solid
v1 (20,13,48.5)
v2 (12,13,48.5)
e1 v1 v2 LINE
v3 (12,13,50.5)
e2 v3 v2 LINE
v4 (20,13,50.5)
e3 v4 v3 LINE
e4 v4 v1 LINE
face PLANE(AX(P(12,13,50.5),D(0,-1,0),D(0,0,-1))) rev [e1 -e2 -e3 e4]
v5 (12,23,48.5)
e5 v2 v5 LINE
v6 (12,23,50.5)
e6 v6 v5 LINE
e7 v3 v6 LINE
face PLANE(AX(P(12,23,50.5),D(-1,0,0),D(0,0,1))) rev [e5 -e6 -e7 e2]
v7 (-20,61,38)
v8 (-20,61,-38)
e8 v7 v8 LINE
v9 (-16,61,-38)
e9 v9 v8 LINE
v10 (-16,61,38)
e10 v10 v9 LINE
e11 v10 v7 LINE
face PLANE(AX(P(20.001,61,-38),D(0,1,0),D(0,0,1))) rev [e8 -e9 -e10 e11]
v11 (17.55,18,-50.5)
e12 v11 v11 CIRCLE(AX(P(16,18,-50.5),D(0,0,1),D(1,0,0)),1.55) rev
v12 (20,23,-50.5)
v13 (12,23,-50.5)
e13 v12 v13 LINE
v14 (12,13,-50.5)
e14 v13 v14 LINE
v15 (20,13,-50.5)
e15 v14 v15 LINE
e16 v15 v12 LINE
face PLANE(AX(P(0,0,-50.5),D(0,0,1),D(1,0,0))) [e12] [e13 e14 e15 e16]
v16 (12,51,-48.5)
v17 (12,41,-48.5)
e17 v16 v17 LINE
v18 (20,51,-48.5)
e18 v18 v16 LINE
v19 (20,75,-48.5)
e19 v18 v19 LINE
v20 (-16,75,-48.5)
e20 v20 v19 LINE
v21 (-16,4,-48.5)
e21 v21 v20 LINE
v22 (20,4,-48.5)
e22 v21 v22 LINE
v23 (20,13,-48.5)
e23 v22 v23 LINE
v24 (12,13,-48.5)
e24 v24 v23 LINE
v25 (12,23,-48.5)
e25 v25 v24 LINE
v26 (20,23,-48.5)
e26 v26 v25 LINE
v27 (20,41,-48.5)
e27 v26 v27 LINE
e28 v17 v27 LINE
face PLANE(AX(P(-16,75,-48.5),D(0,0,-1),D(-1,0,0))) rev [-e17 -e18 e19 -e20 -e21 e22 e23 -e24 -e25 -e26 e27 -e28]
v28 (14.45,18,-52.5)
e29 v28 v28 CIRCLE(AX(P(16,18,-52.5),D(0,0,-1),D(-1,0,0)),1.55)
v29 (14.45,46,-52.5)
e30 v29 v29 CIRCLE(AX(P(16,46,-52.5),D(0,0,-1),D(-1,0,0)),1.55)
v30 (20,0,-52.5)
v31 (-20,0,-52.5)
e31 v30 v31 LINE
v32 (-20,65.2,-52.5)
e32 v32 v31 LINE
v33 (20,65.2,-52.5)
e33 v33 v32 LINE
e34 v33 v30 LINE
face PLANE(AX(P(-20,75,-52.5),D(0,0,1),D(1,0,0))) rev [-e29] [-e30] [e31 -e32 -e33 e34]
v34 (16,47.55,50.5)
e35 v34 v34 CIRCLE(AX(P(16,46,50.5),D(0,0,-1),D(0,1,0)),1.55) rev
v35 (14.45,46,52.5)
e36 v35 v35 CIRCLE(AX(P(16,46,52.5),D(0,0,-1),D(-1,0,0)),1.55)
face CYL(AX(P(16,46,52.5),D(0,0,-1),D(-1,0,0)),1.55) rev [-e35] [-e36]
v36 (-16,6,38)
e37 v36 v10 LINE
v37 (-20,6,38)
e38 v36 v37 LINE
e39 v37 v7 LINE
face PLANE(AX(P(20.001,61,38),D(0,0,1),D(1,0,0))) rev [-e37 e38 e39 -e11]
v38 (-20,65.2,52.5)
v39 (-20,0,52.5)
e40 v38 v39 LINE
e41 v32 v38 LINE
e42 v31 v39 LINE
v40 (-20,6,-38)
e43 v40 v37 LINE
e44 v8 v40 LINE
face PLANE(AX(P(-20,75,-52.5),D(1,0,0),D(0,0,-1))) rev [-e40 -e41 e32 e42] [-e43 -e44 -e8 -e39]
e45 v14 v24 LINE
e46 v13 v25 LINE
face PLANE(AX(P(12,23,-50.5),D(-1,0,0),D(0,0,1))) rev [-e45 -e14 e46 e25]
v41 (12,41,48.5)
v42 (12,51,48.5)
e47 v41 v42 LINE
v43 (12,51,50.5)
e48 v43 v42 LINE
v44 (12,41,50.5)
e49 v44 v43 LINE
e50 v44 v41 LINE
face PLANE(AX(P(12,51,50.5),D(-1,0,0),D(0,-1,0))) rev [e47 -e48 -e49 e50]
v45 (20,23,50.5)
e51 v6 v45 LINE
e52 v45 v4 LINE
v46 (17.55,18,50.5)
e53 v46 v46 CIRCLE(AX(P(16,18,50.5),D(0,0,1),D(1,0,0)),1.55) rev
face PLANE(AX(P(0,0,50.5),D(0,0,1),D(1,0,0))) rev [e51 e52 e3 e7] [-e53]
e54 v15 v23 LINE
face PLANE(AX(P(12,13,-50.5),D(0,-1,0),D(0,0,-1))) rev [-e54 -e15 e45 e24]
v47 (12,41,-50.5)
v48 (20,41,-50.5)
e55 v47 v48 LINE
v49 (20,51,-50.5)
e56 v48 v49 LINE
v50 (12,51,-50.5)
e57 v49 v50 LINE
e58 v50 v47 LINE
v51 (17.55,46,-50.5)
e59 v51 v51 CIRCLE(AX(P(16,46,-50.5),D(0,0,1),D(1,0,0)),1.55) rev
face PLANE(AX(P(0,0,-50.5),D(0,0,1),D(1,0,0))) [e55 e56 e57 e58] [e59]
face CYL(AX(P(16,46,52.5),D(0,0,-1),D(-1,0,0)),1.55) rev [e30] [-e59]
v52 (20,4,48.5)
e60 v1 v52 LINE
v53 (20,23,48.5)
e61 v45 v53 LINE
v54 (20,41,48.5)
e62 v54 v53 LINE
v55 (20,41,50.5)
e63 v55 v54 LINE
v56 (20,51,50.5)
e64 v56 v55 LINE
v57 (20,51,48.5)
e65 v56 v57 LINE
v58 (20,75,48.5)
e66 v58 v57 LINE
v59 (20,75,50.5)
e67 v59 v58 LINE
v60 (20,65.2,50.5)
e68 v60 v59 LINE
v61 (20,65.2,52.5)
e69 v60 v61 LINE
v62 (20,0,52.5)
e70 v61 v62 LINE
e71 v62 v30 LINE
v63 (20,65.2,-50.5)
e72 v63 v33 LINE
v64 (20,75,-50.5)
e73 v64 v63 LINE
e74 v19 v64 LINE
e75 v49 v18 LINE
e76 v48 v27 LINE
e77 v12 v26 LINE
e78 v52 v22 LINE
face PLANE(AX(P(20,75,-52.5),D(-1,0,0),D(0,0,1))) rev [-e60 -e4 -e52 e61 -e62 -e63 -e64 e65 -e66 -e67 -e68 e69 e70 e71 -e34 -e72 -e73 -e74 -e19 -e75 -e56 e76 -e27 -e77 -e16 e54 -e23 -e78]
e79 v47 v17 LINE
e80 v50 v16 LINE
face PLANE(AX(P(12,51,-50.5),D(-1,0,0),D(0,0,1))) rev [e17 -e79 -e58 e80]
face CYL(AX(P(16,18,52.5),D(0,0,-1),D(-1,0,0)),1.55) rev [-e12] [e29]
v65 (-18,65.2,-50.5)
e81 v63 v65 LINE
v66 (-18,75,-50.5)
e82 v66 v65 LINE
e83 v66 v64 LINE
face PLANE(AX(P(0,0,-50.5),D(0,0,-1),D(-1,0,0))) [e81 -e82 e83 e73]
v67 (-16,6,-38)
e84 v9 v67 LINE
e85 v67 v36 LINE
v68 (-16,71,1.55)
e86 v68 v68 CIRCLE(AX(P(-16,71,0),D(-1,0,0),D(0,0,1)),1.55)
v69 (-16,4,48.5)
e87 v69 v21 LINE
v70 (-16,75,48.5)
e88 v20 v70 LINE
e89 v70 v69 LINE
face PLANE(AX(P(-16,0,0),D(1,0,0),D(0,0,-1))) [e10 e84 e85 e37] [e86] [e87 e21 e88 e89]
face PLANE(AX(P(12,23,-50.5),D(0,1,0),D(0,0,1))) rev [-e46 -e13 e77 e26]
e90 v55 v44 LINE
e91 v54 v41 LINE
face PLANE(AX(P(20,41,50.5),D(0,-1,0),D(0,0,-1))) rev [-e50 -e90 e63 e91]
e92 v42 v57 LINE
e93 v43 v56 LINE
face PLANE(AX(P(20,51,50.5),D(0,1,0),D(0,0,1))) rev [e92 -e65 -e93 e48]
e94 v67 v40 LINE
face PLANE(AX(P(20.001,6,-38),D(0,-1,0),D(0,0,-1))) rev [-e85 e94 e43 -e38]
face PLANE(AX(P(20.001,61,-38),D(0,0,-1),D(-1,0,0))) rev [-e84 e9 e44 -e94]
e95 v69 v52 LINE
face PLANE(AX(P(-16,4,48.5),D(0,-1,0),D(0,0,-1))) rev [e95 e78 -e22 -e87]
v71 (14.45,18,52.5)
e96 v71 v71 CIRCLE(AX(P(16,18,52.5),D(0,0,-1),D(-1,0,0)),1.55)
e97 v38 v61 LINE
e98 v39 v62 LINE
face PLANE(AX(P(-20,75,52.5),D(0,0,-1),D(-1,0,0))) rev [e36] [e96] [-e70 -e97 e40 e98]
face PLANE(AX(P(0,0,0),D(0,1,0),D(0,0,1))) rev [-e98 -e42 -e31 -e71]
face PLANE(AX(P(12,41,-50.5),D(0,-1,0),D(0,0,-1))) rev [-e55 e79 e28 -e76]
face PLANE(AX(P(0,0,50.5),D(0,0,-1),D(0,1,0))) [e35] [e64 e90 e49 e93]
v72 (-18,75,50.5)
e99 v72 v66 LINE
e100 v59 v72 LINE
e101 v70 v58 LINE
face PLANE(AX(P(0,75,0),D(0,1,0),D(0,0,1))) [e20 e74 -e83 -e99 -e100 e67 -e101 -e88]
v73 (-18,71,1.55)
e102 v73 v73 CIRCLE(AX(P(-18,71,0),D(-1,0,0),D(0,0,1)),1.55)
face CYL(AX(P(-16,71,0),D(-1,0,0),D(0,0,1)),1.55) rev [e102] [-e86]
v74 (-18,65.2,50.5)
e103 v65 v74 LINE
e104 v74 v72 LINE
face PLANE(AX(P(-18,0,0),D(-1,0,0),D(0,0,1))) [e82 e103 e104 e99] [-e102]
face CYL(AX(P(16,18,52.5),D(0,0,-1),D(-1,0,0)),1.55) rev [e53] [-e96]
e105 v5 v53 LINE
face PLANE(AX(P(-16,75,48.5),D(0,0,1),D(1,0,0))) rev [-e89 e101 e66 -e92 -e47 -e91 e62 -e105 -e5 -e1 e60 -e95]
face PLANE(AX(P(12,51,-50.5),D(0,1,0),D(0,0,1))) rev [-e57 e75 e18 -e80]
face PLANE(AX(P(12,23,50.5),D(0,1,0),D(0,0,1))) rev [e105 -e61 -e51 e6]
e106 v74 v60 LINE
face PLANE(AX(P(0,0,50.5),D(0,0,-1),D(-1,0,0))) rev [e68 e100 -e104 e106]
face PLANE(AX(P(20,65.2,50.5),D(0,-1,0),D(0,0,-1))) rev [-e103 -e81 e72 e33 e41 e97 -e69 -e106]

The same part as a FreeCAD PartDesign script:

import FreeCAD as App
import Part
import Sketcher


def add_polygon(sketch, points):
    """Adds a closed chain of lines whose ends are joined by coincident constraints."""
    first, n = sketch.GeometryCount, len(points)
    for a, b in zip(points, points[1:] + points[:1]):
        sketch.addGeometry(Part.LineSegment(App.Vector(*a, 0), App.Vector(*b, 0)), False)
    for i in range(n):
        sketch.addConstraint(Sketcher.Constraint("Coincident", first + i, 2, first + (i + 1) % n, 1))

doc = App.newDocument("Part")
body = doc.addObject("PartDesign::Body", "Body")

# Sketch on XZ plane
sketch1 = body.newObject("Sketcher::SketchObject", "Sketch")
sketch1.AttachmentSupport = (doc.getObject("XZ_Plane"), [""])
sketch1.MapMode = "FlatFace"
add_polygon(sketch1, [(-20, -52.5), (-20, 52.5), (20, 52.5), (20, -52.5)])  # lines 0-3
sketch1.addConstraint([
    Sketcher.Constraint("Vertical", 0),
    Sketcher.Constraint("Horizontal", 1),
    Sketcher.Constraint("Vertical", 2),
    Sketcher.Constraint("Horizontal", 3),
    Sketcher.Constraint("Symmetric", 0, 2, 2, 2, -1, 1),
    Sketcher.Constraint("DistanceX", 1, 1, 1, 2, 40.0),
    Sketcher.Constraint("DistanceY", 0, 1, 0, 2, 105.0),
])
pad1 = body.newObject("PartDesign::Pad", "Pad")
pad1.Profile = sketch1
pad1.Length = 75
pad1.Reversed = True

# Sketch on YZ plane
sketch2 = body.newObject("Sketcher::SketchObject", "Sketch001")
sketch2.AttachmentSupport = (doc.getObject("YZ_Plane"), [""])
sketch2.MapMode = "FlatFace"
sketch2.AttachmentOffset = App.Placement(App.Vector(0, 0, 20), App.Rotation())
add_polygon(sketch2, [(75, 48.5), (4, 48.5), (4, -48.5), (75, -48.5)])  # lines 0-3
sketch2.addConstraint([
    Sketcher.Constraint("Horizontal", 0),
    Sketcher.Constraint("Vertical", 1),
    Sketcher.Constraint("Horizontal", 2),
    Sketcher.Constraint("Vertical", 3),
    Sketcher.Constraint("DistanceX", 0, 2, 0, 1, 71.0),
    Sketcher.Constraint("DistanceY", 1, 2, 1, 1, 97.0),
    Sketcher.Constraint("DistanceX", -1, 1, 0, 2, 4.0),
    Sketcher.Constraint("DistanceY", -1, 1, 0, 2, 48.5),
])
pocket1 = body.newObject("PartDesign::Pocket", "Pocket")
pocket1.Profile = sketch2
pocket1.Length = 36

# Sketch on XY plane
sketch3 = body.newObject("Sketcher::SketchObject", "Sketch002")
sketch3.AttachmentSupport = (doc.getObject("XY_Plane"), [""])
sketch3.MapMode = "FlatFace"
sketch3.AttachmentOffset = App.Placement(App.Vector(0, 0, 52.5), App.Rotation())
add_polygon(sketch3, [(-20, 75), (-20, 65.2), (20, 65.2), (20, 75)])  # lines 0-3
sketch3.addConstraint([
    Sketcher.Constraint("Vertical", 0),
    Sketcher.Constraint("Horizontal", 1),
    Sketcher.Constraint("Vertical", 2),
    Sketcher.Constraint("Horizontal", 3),
    Sketcher.Constraint("DistanceX", 1, 1, 1, 2, 40.0),
    Sketcher.Constraint("DistanceY", 0, 2, 0, 1, 9.8),
    Sketcher.Constraint("DistanceX", 0, 2, -1, 1, 20.0),
    Sketcher.Constraint("DistanceY", -1, 1, 2, 2, 75.0),
])
pocket2 = body.newObject("PartDesign::Pocket", "Pocket001")
pocket2.Profile = sketch3
pocket2.Length = 2

# Sketch on XY plane
sketch4 = body.newObject("Sketcher::SketchObject", "Sketch003")
sketch4.AttachmentSupport = (doc.getObject("XY_Plane"), [""])
sketch4.MapMode = "FlatFace"
sketch4.AttachmentOffset = App.Placement(App.Vector(0, 0, -52.5), App.Rotation())
add_polygon(sketch4, [(20, 75), (20, 65.2), (-20, 65.2), (-20, 75)])  # lines 0-3
sketch4.addConstraint([
    Sketcher.Constraint("Vertical", 0),
    Sketcher.Constraint("Horizontal", 1),
    Sketcher.Constraint("Vertical", 2),
    Sketcher.Constraint("Horizontal", 3),
    Sketcher.Constraint("DistanceX", 1, 2, 1, 1, 40.0),
    Sketcher.Constraint("DistanceY", 0, 2, 0, 1, 9.8),
    Sketcher.Constraint("DistanceX", -1, 1, 0, 2, 20.0),
    Sketcher.Constraint("DistanceY", -1, 1, 2, 2, 75.0),
])
pocket3 = body.newObject("PartDesign::Pocket", "Pocket002")
pocket3.Profile = sketch4
pocket3.Length = 2
pocket3.Reversed = True

# Sketch on YZ plane
sketch5 = body.newObject("Sketcher::SketchObject", "Sketch004")
sketch5.AttachmentSupport = (doc.getObject("YZ_Plane"), [""])
sketch5.MapMode = "FlatFace"
sketch5.AttachmentOffset = App.Placement(App.Vector(0, 0, -20), App.Rotation())
add_polygon(sketch5, [(75, -50.5), (65.2, -50.5), (65.2, 50.5), (75, 50.5)])  # lines 0-3
sketch5.addConstraint([
    Sketcher.Constraint("Horizontal", 0),
    Sketcher.Constraint("Vertical", 1),
    Sketcher.Constraint("Horizontal", 2),
    Sketcher.Constraint("Vertical", 3),
    Sketcher.Constraint("DistanceY", 1, 1, 1, 2, 101.0),
    Sketcher.Constraint("DistanceX", 0, 2, 0, 1, 9.8),
    Sketcher.Constraint("DistanceX", -1, 1, 2, 2, 75.0),
    Sketcher.Constraint("DistanceY", 0, 2, -1, 1, 50.5),
])
pocket4 = body.newObject("PartDesign::Pocket", "Pocket003")
pocket4.Profile = sketch5
pocket4.Length = 2
pocket4.Reversed = True

# Sketch on XY plane
sketch6 = body.newObject("Sketcher::SketchObject", "Sketch005")
sketch6.AttachmentSupport = (doc.getObject("XY_Plane"), [""])
sketch6.MapMode = "FlatFace"
sketch6.AttachmentOffset = App.Placement(App.Vector(0, 0, 48.5), App.Rotation())
sketch6.addGeometry([
    Part.Circle(App.Vector(16, 18, 0), App.Vector(0, 0, 1), 1.55),
    Part.Circle(App.Vector(16, 46, 0), App.Vector(0, 0, 1), 1.55),
], False)
sketch6.addConstraint([
    Sketcher.Constraint("Equal", 0, 1),
    Sketcher.Constraint("Vertical", 0, 3, 1, 3),
    Sketcher.Constraint("Diameter", 0, 3.1),
    Sketcher.Constraint("DistanceX", -1, 1, 0, 3, 16.0),
    Sketcher.Constraint("DistanceY", -1, 1, 0, 3, 18.0),
    Sketcher.Constraint("DistanceY", -1, 1, 1, 3, 46.0),
])
pocket5 = body.newObject("PartDesign::Pocket", "Pocket004")
pocket5.Profile = sketch6
pocket5.Type = "ThroughAll"
pocket5.Midplane = True

# Sketch on XY plane
sketch7 = body.newObject("Sketcher::SketchObject", "Sketch006")
sketch7.AttachmentSupport = (doc.getObject("XY_Plane"), [""])
sketch7.MapMode = "FlatFace"
sketch7.AttachmentOffset = App.Placement(App.Vector(0, 0, 48.5), App.Rotation())
add_polygon(sketch7, [(20, 23), (20, 13), (12, 13), (12, 23)])  # lines 0-3
add_polygon(sketch7, [(20, 51), (20, 41), (12, 41), (12, 51)])  # lines 4-7
sketch7.addConstraint([
    Sketcher.Constraint("Vertical", 0),
    Sketcher.Constraint("Horizontal", 1),
    Sketcher.Constraint("Vertical", 2),
    Sketcher.Constraint("Horizontal", 3),
    Sketcher.Constraint("Vertical", 4),
    Sketcher.Constraint("Horizontal", 5),
    Sketcher.Constraint("Vertical", 6),
    Sketcher.Constraint("Horizontal", 7),
    Sketcher.Constraint("Vertical", 3, 2, 4, 2),
    Sketcher.Constraint("Vertical", 2, 2, 5, 2),
    Sketcher.Constraint("Equal", 2, 4),
    Sketcher.Constraint("DistanceX", 1, 2, 1, 1, 8.0),
    Sketcher.Constraint("DistanceY", 0, 2, 0, 1, 10.0),
    Sketcher.Constraint("DistanceX", -1, 1, 0, 2, 20.0),
    Sketcher.Constraint("DistanceY", -1, 1, 0, 2, 13.0),
    Sketcher.Constraint("DistanceY", -1, 1, 4, 2, 41.0),
])
pocket6 = body.newObject("PartDesign::Pocket", "Pocket005")
pocket6.Profile = sketch7
pocket6.Length = 2
pocket6.Reversed = True

# Sketch on YZ plane
sketch8 = body.newObject("Sketcher::SketchObject", "Sketch007")
sketch8.AttachmentSupport = (doc.getObject("YZ_Plane"), [""])
sketch8.MapMode = "FlatFace"
sketch8.AttachmentOffset = App.Placement(App.Vector(0, 0, -18), App.Rotation())
sketch8.addGeometry(Part.Circle(App.Vector(71, 0, 0), App.Vector(0, 0, 1), 1.55), False)
sketch8.addConstraint([
    Sketcher.Constraint("PointOnObject", 0, 3, -1),
    Sketcher.Constraint("Diameter", 0, 3.1),
    Sketcher.Constraint("DistanceX", -1, 1, 0, 3, 71.0),
])
pocket7 = body.newObject("PartDesign::Pocket", "Pocket006")
pocket7.Profile = sketch8
pocket7.Length = 2
pocket7.Reversed = True

# Sketch on XY plane
sketch9 = body.newObject("Sketcher::SketchObject", "Sketch008")
sketch9.AttachmentSupport = (doc.getObject("XY_Plane"), [""])
sketch9.MapMode = "FlatFace"
sketch9.AttachmentOffset = App.Placement(App.Vector(0, 0, -48.5), App.Rotation())
add_polygon(sketch9, [(12, 51), (12, 41), (20, 41), (20, 51)])  # lines 0-3
add_polygon(sketch9, [(12, 23), (12, 13), (20, 13), (20, 23)])  # lines 4-7
sketch9.addConstraint([
    Sketcher.Constraint("Vertical", 0),
    Sketcher.Constraint("Horizontal", 1),
    Sketcher.Constraint("Vertical", 2),
    Sketcher.Constraint("Horizontal", 3),
    Sketcher.Constraint("Vertical", 4),
    Sketcher.Constraint("Horizontal", 5),
    Sketcher.Constraint("Vertical", 6),
    Sketcher.Constraint("Horizontal", 7),
    Sketcher.Constraint("Vertical", 3, 2, 4, 2),
    Sketcher.Constraint("Vertical", 2, 2, 5, 2),
    Sketcher.Constraint("Equal", 2, 4),
    Sketcher.Constraint("DistanceX", 1, 1, 1, 2, 8.0),
    Sketcher.Constraint("DistanceY", 0, 2, 0, 1, 10.0),
    Sketcher.Constraint("DistanceX", -1, 1, 0, 2, 12.0),
    Sketcher.Constraint("DistanceY", -1, 1, 0, 2, 41.0),
    Sketcher.Constraint("DistanceY", -1, 1, 4, 2, 13.0),
])
pocket8 = body.newObject("PartDesign::Pocket", "Pocket007")
pocket8.Profile = sketch9
pocket8.Length = 2

# Sketch on YZ plane
sketch10 = body.newObject("Sketcher::SketchObject", "Sketch009")
sketch10.AttachmentSupport = (doc.getObject("YZ_Plane"), [""])
sketch10.MapMode = "FlatFace"
sketch10.AttachmentOffset = App.Placement(App.Vector(0, 0, -20), App.Rotation())
add_polygon(sketch10, [(61, -38), (6, -38), (6, 38), (61, 38)])  # lines 0-3
sketch10.addConstraint([
    Sketcher.Constraint("Horizontal", 0),
    Sketcher.Constraint("Vertical", 1),
    Sketcher.Constraint("Horizontal", 2),
    Sketcher.Constraint("Vertical", 3),
    Sketcher.Constraint("DistanceX", 0, 2, 0, 1, 55.0),
    Sketcher.Constraint("DistanceY", 1, 1, 1, 2, 76.0),
    Sketcher.Constraint("DistanceX", -1, 1, 0, 2, 6.0),
    Sketcher.Constraint("DistanceY", 0, 2, -1, 1, 38.0),
])
pocket9 = body.newObject("PartDesign::Pocket", "Pocket008")
pocket9.Profile = sketch10
pocket9.Type = "UpToFirst"
pocket9.Reversed = True

doc.recompute()
